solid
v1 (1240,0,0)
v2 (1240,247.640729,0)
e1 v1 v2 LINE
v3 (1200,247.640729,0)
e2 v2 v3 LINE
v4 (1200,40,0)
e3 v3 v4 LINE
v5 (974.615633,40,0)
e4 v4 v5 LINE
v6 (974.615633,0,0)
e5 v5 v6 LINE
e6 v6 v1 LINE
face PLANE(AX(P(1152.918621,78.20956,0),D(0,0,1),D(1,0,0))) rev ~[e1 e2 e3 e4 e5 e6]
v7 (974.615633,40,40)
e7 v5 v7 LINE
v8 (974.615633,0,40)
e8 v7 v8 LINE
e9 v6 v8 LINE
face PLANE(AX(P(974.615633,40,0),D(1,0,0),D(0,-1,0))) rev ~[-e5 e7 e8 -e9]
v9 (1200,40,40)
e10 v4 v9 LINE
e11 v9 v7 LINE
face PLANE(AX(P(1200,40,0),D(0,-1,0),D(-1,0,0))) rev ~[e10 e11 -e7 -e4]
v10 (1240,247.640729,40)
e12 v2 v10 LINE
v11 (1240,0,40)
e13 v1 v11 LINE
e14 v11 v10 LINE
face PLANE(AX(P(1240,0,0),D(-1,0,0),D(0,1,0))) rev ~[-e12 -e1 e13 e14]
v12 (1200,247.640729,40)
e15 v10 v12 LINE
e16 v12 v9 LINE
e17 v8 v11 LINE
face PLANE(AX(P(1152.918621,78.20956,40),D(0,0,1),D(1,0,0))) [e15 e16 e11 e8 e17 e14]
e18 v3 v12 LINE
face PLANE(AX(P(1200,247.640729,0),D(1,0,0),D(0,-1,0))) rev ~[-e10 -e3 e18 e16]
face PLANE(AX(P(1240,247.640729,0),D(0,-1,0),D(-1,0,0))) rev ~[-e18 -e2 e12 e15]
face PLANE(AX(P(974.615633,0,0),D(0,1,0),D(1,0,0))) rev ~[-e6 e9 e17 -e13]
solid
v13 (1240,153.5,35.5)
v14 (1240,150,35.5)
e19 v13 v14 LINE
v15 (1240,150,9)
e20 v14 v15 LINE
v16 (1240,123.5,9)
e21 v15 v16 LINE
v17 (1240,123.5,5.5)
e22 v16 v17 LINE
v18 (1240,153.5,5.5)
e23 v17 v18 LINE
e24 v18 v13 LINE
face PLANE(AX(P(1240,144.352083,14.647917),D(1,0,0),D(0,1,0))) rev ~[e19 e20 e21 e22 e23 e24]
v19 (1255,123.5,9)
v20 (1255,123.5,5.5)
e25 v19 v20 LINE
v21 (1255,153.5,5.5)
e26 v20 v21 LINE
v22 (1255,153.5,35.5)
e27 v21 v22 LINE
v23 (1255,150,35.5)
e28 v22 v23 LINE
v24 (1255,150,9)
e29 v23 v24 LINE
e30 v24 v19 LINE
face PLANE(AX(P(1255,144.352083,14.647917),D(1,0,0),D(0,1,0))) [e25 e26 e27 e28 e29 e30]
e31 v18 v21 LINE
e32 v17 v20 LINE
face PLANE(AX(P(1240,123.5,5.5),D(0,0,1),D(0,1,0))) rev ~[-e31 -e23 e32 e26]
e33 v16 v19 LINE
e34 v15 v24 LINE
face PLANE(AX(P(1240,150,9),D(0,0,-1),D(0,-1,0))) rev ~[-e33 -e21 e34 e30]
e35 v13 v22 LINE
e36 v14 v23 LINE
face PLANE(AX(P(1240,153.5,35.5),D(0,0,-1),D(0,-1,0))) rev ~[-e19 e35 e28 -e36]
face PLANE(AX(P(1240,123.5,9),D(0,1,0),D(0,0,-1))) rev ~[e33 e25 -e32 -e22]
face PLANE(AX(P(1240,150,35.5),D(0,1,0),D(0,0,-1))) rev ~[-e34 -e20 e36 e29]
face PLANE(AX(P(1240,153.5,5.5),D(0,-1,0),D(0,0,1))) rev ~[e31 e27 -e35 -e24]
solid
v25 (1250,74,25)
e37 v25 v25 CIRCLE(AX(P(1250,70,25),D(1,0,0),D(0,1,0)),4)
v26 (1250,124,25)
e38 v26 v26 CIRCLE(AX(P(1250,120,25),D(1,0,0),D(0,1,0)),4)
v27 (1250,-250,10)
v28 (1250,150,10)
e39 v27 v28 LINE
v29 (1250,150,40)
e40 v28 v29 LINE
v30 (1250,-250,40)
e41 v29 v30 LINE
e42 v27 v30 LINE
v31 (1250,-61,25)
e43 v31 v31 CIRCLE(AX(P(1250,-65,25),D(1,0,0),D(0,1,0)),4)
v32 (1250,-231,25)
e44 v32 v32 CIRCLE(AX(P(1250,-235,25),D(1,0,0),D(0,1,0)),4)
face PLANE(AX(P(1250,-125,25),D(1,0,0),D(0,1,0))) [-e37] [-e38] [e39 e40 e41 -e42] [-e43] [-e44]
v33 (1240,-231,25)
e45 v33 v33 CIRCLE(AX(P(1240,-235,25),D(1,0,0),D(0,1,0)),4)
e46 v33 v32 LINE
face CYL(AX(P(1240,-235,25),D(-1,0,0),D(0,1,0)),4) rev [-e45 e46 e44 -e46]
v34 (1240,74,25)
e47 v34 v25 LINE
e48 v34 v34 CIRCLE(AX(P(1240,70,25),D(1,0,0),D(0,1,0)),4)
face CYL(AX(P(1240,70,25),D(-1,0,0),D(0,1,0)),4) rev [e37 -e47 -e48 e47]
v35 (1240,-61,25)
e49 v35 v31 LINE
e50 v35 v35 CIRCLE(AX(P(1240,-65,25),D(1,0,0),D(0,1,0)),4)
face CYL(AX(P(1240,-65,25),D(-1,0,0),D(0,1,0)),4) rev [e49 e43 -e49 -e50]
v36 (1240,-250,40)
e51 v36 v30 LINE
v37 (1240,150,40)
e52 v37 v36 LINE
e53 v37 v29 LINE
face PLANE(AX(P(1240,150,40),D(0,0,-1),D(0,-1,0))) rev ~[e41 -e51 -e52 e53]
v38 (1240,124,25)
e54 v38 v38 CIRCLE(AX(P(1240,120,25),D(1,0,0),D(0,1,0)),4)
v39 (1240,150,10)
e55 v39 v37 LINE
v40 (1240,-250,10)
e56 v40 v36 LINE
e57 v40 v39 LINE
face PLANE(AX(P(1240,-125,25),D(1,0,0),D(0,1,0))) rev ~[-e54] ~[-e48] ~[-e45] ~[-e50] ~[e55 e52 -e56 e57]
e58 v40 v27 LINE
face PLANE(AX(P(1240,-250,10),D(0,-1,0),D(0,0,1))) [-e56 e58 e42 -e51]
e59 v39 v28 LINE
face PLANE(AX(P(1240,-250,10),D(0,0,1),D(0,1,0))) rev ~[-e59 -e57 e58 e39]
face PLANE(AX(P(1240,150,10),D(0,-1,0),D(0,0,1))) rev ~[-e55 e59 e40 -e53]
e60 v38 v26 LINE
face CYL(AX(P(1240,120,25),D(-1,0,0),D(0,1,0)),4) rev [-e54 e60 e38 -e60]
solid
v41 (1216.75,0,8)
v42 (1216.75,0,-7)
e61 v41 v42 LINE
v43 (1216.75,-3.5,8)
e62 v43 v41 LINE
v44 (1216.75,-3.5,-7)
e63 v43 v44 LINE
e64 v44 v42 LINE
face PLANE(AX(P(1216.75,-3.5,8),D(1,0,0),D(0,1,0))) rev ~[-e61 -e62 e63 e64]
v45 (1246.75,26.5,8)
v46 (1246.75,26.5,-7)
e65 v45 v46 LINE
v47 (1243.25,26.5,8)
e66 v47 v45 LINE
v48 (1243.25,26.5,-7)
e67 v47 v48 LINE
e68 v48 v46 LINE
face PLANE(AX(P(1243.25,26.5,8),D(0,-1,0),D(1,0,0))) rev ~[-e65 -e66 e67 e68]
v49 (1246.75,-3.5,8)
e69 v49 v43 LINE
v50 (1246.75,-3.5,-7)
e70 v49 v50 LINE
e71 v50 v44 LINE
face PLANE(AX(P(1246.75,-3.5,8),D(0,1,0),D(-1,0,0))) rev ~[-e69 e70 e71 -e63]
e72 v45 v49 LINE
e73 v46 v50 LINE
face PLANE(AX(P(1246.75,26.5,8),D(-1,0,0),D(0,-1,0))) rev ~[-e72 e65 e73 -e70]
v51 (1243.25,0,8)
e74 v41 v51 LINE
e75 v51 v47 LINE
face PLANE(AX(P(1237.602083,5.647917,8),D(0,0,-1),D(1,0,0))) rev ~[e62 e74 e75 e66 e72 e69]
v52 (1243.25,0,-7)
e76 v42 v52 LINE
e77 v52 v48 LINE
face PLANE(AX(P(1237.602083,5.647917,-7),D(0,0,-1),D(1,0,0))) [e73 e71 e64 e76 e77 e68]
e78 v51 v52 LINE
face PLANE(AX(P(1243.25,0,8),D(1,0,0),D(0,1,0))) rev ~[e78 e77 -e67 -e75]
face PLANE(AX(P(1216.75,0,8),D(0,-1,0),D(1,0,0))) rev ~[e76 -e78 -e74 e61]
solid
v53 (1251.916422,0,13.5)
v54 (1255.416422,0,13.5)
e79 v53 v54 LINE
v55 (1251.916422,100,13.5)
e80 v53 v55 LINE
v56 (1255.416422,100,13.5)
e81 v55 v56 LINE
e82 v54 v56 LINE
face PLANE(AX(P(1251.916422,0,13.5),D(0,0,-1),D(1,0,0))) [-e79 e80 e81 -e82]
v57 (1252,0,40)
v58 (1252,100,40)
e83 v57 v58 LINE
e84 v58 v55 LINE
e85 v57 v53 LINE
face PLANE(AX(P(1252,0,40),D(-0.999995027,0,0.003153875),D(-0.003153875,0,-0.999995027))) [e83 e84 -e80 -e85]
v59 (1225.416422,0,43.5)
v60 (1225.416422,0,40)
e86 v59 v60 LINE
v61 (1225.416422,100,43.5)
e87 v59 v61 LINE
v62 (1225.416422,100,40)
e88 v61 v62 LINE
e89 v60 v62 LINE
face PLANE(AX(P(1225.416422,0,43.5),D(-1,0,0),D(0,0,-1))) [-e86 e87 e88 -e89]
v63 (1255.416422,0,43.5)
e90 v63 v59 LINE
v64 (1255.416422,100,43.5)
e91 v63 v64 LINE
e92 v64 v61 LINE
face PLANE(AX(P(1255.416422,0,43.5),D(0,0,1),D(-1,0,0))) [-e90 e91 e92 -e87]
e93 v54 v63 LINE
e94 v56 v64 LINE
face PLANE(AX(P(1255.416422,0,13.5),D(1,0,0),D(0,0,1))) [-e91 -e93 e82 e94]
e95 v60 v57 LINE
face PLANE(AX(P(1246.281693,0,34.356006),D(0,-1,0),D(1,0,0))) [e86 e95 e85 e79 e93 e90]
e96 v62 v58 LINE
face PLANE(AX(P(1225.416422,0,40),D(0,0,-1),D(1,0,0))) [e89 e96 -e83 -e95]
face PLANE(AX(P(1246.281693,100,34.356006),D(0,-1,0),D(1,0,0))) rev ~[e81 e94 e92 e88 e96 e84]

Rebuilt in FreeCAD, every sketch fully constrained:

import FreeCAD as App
import Part
import Sketcher
Q = App.Units.Quantity

doc = App.newDocument("Part")
body = doc.addObject("PartDesign::Body", "Body")

# Sketch on XY plane
sketch1 = doc.addObject("Sketcher::SketchObject", "Sketch")
body.addObject(sketch1)
sketch1.AttachmentSupport = (doc.XY_Plane, [""])
sketch1.MapMode = "FlatFace"
sketch1.addGeometry(Part.LineSegment(App.Vector(975, 40, 0), App.Vector(975, 0, 0)), False)
sketch1.addGeometry(Part.LineSegment(App.Vector(975, 0, 0), App.Vector(1240, 0, 0)), False)
sketch1.addGeometry(Part.LineSegment(App.Vector(1240, 0, 0), App.Vector(1240, 248, 0)), False)
sketch1.addGeometry(Part.LineSegment(App.Vector(1240, 248, 0), App.Vector(1200, 248, 0)), False)
sketch1.addGeometry(Part.LineSegment(App.Vector(1200, 248, 0), App.Vector(1200, 40, 0)), False)
sketch1.addGeometry(Part.LineSegment(App.Vector(1200, 40, 0), App.Vector(975, 40, 0)), False)
sketch1.addConstraint(Sketcher.Constraint("Coincident", 0, 2, 1, 1))
sketch1.addConstraint(Sketcher.Constraint("Coincident", 1, 2, 2, 1))
sketch1.addConstraint(Sketcher.Constraint("Coincident", 2, 2, 3, 1))
sketch1.addConstraint(Sketcher.Constraint("Coincident", 3, 2, 4, 1))
sketch1.addConstraint(Sketcher.Constraint("Coincident", 4, 2, 5, 1))
sketch1.addConstraint(Sketcher.Constraint("Coincident", 5, 2, 0, 1))
sketch1.addConstraint(Sketcher.Constraint("Vertical", 0))
sketch1.addConstraint(Sketcher.Constraint("Horizontal", 1))
sketch1.addConstraint(Sketcher.Constraint("Vertical", 2))
sketch1.addConstraint(Sketcher.Constraint("Horizontal", 3))
sketch1.addConstraint(Sketcher.Constraint("Vertical", 4))
sketch1.addConstraint(Sketcher.Constraint("Horizontal", 5))
sketch1.addConstraint(Sketcher.Constraint("PointOnObject", 0, 2, -1))
sketch1.addConstraint(Sketcher.Constraint("Equal", 3, 0))
sketch1.addConstraint(Sketcher.Constraint("DistanceX", 3, 2, 3, 1, Q("40 mm")))
sketch1.addConstraint(Sketcher.Constraint("DistanceX", -1, 1, 1, 2, Q("1240 mm")))
sketch1.addConstraint(Sketcher.Constraint("DistanceY", 2, 1, 2, 2, Q("247.640729 mm")))
sketch1.addConstraint(Sketcher.Constraint("DistanceX", 1, 1, 1, 2, Q("265.384367 mm")))
pad1 = doc.addObject("PartDesign::Pad", "Pad")
body.addObject(pad1)
pad1.Profile = sketch1
pad1.Length = 40
body2 = doc.addObject("PartDesign::Body", "Body001")

# Sketch on YZ plane
sketch2 = doc.addObject("Sketcher::SketchObject", "Sketch001")
body2.addObject(sketch2)
sketch2.AttachmentSupport = (doc.getObject("YZ_Plane001"), [""])
sketch2.MapMode = "FlatFace"
sketch2.AttachmentOffset = App.Placement(App.Vector(0, 0, 1240), App.Rotation())
sketch2.addGeometry(Part.LineSegment(App.Vector(-250, 40, 0), App.Vector(-250, 10, 0)), False)
sketch2.addGeometry(Part.LineSegment(App.Vector(-250, 10, 0), App.Vector(150, 10, 0)), False)
sketch2.addGeometry(Part.LineSegment(App.Vector(150, 10, 0), App.Vector(150, 40, 0)), False)
sketch2.addGeometry(Part.LineSegment(App.Vector(150, 40, 0), App.Vector(-250, 40, 0)), False)
sketch2.addGeometry(Part.Circle(App.Vector(-235, 25, 0), App.Vector(0, 0, 1), 4), False)
sketch2.addGeometry(Part.Circle(App.Vector(-65, 25, 0), App.Vector(0, 0, 1), 4), False)
sketch2.addGeometry(Part.Circle(App.Vector(70, 25, 0), App.Vector(0, 0, 1), 4), False)
sketch2.addGeometry(Part.Circle(App.Vector(120, 25, 0), App.Vector(0, 0, 1), 4), False)
sketch2.addConstraint(Sketcher.Constraint("Coincident", 0, 2, 1, 1))
sketch2.addConstraint(Sketcher.Constraint("Coincident", 1, 2, 2, 1))
sketch2.addConstraint(Sketcher.Constraint("Coincident", 2, 2, 3, 1))
sketch2.addConstraint(Sketcher.Constraint("Coincident", 3, 2, 0, 1))
sketch2.addConstraint(Sketcher.Constraint("Vertical", 0))
sketch2.addConstraint(Sketcher.Constraint("Horizontal", 1))
sketch2.addConstraint(Sketcher.Constraint("Vertical", 2))
sketch2.addConstraint(Sketcher.Constraint("Horizontal", 3))
sketch2.addConstraint(Sketcher.Constraint("Equal", 4, 5))
sketch2.addConstraint(Sketcher.Constraint("Equal", 5, 6))
sketch2.addConstraint(Sketcher.Constraint("Equal", 6, 7))
sketch2.addConstraint(Sketcher.Constraint("Horizontal", 4, 3, 5, 3))
sketch2.addConstraint(Sketcher.Constraint("Horizontal", 5, 3, 6, 3))
sketch2.addConstraint(Sketcher.Constraint("Horizontal", 6, 3, 7, 3))
sketch2.addConstraint(Sketcher.Constraint("Diameter", 4, Q("8 mm")))
sketch2.addConstraint(Sketcher.Constraint("DistanceX", 1, 1, 1, 2, Q("400 mm")))
sketch2.addConstraint(Sketcher.Constraint("DistanceY", 0, 2, 0, 1, Q("30 mm")))
sketch2.addConstraint(Sketcher.Constraint("DistanceX", 4, 3, -1, 1, Q("235 mm")))
sketch2.addConstraint(Sketcher.Constraint("DistanceY", -1, 1, 4, 3, Q("25 mm")))
sketch2.addConstraint(Sketcher.Constraint("DistanceX", 5, 3, -1, 1, Q("65 mm")))
sketch2.addConstraint(Sketcher.Constraint("DistanceX", -1, 1, 6, 3, Q("70 mm")))
sketch2.addConstraint(Sketcher.Constraint("DistanceX", -1, 1, 7, 3, Q("120 mm")))
sketch2.addConstraint(Sketcher.Constraint("DistanceX", 0, 2, -1, 1, Q("250 mm")))
sketch2.addConstraint(Sketcher.Constraint("DistanceY", -1, 1, 0, 2, Q("10 mm")))
pad2 = doc.addObject("PartDesign::Pad", "Pad001")
body2.addObject(pad2)
pad2.Profile = sketch2
pad2.Length = 10
body3 = doc.addObject("PartDesign::Body", "Body002")

# Sketch on XZ plane
sketch3 = doc.addObject("Sketcher::SketchObject", "Sketch002")
body3.addObject(sketch3)
sketch3.AttachmentSupport = (doc.getObject("XZ_Plane002"), [""])
sketch3.MapMode = "FlatFace"
sketch3.addGeometry(Part.LineSegment(App.Vector(1252, 40, 0), App.Vector(1251.9, 13.5, 0)), False)
sketch3.addGeometry(Part.LineSegment(App.Vector(1251.9, 13.5, 0), App.Vector(1255.4, 13.5, 0)), False)
sketch3.addGeometry(Part.LineSegment(App.Vector(1255.4, 13.5, 0), App.Vector(1255.4, 43.5, 0)), False)
sketch3.addGeometry(Part.LineSegment(App.Vector(1255.4, 43.5, 0), App.Vector(1225.4, 43.5, 0)), False)
sketch3.addGeometry(Part.LineSegment(App.Vector(1225.4, 43.5, 0), App.Vector(1225.4, 40, 0)), False)
sketch3.addGeometry(Part.LineSegment(App.Vector(1225.4, 40, 0), App.Vector(1252, 40, 0)), False)
sketch3.addConstraint(Sketcher.Constraint("Coincident", 0, 2, 1, 1))
sketch3.addConstraint(Sketcher.Constraint("Coincident", 1, 2, 2, 1))
sketch3.addConstraint(Sketcher.Constraint("Coincident", 2, 2, 3, 1))
sketch3.addConstraint(Sketcher.Constraint("Coincident", 3, 2, 4, 1))
sketch3.addConstraint(Sketcher.Constraint("Coincident", 4, 2, 5, 1))
sketch3.addConstraint(Sketcher.Constraint("Coincident", 5, 2, 0, 1))
sketch3.addConstraint(Sketcher.Constraint("Horizontal", 1))
sketch3.addConstraint(Sketcher.Constraint("Vertical", 2))
sketch3.addConstraint(Sketcher.Constraint("Horizontal", 3))
sketch3.addConstraint(Sketcher.Constraint("Vertical", 4))
sketch3.addConstraint(Sketcher.Constraint("Horizontal", 5))
sketch3.addConstraint(Sketcher.Constraint("Equal", 3, 2))
sketch3.addConstraint(Sketcher.Constraint("Equal", 1, 4))
sketch3.addConstraint(Sketcher.Constraint("DistanceX", 3, 2, 3, 1, Q("30 mm")))
sketch3.addConstraint(Sketcher.Constraint("DistanceX", 1, 1, 1, 2, Q("3.5 mm")))
sketch3.addConstraint(Sketcher.Constraint("DistanceY", -1, 1, 4, 2, Q("40 mm")))
sketch3.addConstraint(Sketcher.Constraint("DistanceX", -1, 1, 5, 2, Q("1252 mm")))
sketch3.addConstraint(Sketcher.Constraint("DistanceX", 5, 1, 5, 2, Q("26.583578 mm")))
pad3 = doc.addObject("PartDesign::Pad", "Pad002")
body3.addObject(pad3)
pad3.Profile = sketch3
pad3.Length = 100
pad3.Reversed = True
body4 = doc.addObject("PartDesign::Body", "Body003")

# Sketch on YZ plane
sketch4 = doc.addObject("Sketcher::SketchObject", "Sketch003")
body4.addObject(sketch4)
sketch4.AttachmentSupport = (doc.getObject("YZ_Plane003"), [""])
sketch4.MapMode = "FlatFace"
sketch4.AttachmentOffset = App.Placement(App.Vector(0, 0, 1240), App.Rotation())
sketch4.addGeometry(Part.LineSegment(App.Vector(150, 35.5, 0), App.Vector(150, 9, 0)), False)
sketch4.addGeometry(Part.LineSegment(App.Vector(150, 9, 0), App.Vector(123.5, 9, 0)), False)
sketch4.addGeometry(Part.LineSegment(App.Vector(123.5, 9, 0), App.Vector(123.5, 5.5, 0)), False)
sketch4.addGeometry(Part.LineSegment(App.Vector(123.5, 5.5, 0), App.Vector(153.5, 5.5, 0)), False)
sketch4.addGeometry(Part.LineSegment(App.Vector(153.5, 5.5, 0), App.Vector(153.5, 35.5, 0)), False)
sketch4.addGeometry(Part.LineSegment(App.Vector(153.5, 35.5, 0), App.Vector(150, 35.5, 0)), False)
sketch4.addConstraint(Sketcher.Constraint("Coincident", 0, 2, 1, 1))
sketch4.addConstraint(Sketcher.Constraint("Coincident", 1, 2, 2, 1))
sketch4.addConstraint(Sketcher.Constraint("Coincident", 2, 2, 3, 1))
sketch4.addConstraint(Sketcher.Constraint("Coincident", 3, 2, 4, 1))
sketch4.addConstraint(Sketcher.Constraint("Coincident", 4, 2, 5, 1))
sketch4.addConstraint(Sketcher.Constraint("Coincident", 5, 2, 0, 1))
sketch4.addConstraint(Sketcher.Constraint("Vertical", 0))
sketch4.addConstraint(Sketcher.Constraint("Horizontal", 1))
sketch4.addConstraint(Sketcher.Constraint("Vertical", 2))
sketch4.addConstraint(Sketcher.Constraint("Horizontal", 3))
sketch4.addConstraint(Sketcher.Constraint("Vertical", 4))
sketch4.addConstraint(Sketcher.Constraint("Horizontal", 5))
sketch4.addConstraint(Sketcher.Constraint("Equal", 1, 0))
sketch4.addConstraint(Sketcher.Constraint("Equal", 5, 2))
sketch4.addConstraint(Sketcher.Constraint("DistanceX", 3, 1, 3, 2, Q("30 mm")))
sketch4.addConstraint(Sketcher.Constraint("DistanceX", 1, 2, 1, 1, Q("26.5 mm")))
sketch4.addConstraint(Sketcher.Constraint("DistanceX", -1, 1, 0, 2, Q("150 mm")))
sketch4.addConstraint(Sketcher.Constraint("DistanceY", -1, 1, 0, 2, Q("9 mm")))
pad4 = doc.addObject("PartDesign::Pad", "Pad003")
body4.addObject(pad4)
pad4.Profile = sketch4
pad4.Length = 15
body5 = doc.addObject("PartDesign::Body", "Body004")

# Sketch on XY plane
sketch5 = doc.addObject("Sketcher::SketchObject", "Sketch004")
body5.addObject(sketch5)
sketch5.AttachmentSupport = (doc.getObject("XY_Plane004"), [""])
sketch5.MapMode = "FlatFace"
sketch5.AttachmentOffset = App.Placement(App.Vector(0, 0, 8), App.Rotation())
sketch5.addGeometry(Part.LineSegment(App.Vector(1243.2, 26.5, 0), App.Vector(1246.8, 26.5, 0)), False)
sketch5.addGeometry(Part.LineSegment(App.Vector(1246.8, 26.5, 0), App.Vector(1246.8, -3.5, 0)), False)
sketch5.addGeometry(Part.LineSegment(App.Vector(1246.8, -3.5, 0), App.Vector(1216.8, -3.5, 0)), False)
sketch5.addGeometry(Part.LineSegment(App.Vector(1216.8, -3.5, 0), App.Vector(1216.8, 0, 0)), False)
sketch5.addGeometry(Part.LineSegment(App.Vector(1216.8, 0, 0), App.Vector(1243.2, 0, 0)), False)
sketch5.addGeometry(Part.LineSegment(App.Vector(1243.2, 0, 0), App.Vector(1243.2, 26.5, 0)), False)
sketch5.addConstraint(Sketcher.Constraint("Coincident", 0, 2, 1, 1))
sketch5.addConstraint(Sketcher.Constraint("Coincident", 1, 2, 2, 1))
sketch5.addConstraint(Sketcher.Constraint("Coincident", 2, 2, 3, 1))
sketch5.addConstraint(Sketcher.Constraint("Coincident", 3, 2, 4, 1))
sketch5.addConstraint(Sketcher.Constraint("Coincident", 4, 2, 5, 1))
sketch5.addConstraint(Sketcher.Constraint("Coincident", 5, 2, 0, 1))
sketch5.addConstraint(Sketcher.Constraint("Horizontal", 0))
sketch5.addConstraint(Sketcher.Constraint("Vertical", 1))
sketch5.addConstraint(Sketcher.Constraint("Horizontal", 2))
sketch5.addConstraint(Sketcher.Constraint("Vertical", 3))
sketch5.addConstraint(Sketcher.Constraint("Horizontal", 4))
sketch5.addConstraint(Sketcher.Constraint("Vertical", 5))
sketch5.addConstraint(Sketcher.Constraint("PointOnObject", 3, 2, -1))
sketch5.addConstraint(Sketcher.Constraint("Equal", 2, 1))
sketch5.addConstraint(Sketcher.Constraint("Equal", 0, 3))
sketch5.addConstraint(Sketcher.Constraint("DistanceX", 2, 2, 2, 1, Q("30 mm")))
sketch5.addConstraint(Sketcher.Constraint("DistanceX", 0, 1, 0, 2, Q("3.5 mm")))
sketch5.addConstraint(Sketcher.Constraint("DistanceX", -1, 1, 0, 2, Q("1246.75 mm")))
pad5 = doc.addObject("PartDesign::Pad", "Pad004")
body5.addObject(pad5)
pad5.Profile = sketch5
pad5.Length = 15
pad5.Reversed = True

doc.recompute()
